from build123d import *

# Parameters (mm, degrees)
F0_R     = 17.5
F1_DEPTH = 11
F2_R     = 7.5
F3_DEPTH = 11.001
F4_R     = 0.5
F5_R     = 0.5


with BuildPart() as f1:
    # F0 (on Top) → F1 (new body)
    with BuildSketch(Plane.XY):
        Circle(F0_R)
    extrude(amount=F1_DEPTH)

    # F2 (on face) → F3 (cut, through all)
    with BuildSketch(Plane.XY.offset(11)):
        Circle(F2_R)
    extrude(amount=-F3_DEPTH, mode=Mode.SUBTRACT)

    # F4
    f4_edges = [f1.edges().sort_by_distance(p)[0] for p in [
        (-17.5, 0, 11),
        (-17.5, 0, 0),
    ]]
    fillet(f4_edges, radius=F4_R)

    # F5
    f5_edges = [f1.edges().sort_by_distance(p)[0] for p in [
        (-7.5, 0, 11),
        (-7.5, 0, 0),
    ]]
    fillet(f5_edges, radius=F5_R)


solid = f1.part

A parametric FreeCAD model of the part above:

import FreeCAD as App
import Part
import Sketcher
from FreeCAD import Vector
Q = App.Units.Quantity


def edges_at(feature, points):
    """Names of the edges that pass closest to the given points."""
    edges = feature.Shape.Edges
    near = lambda p: min(range(len(edges)), key=lambda i: edges[i].distToShape(Part.Vertex(*p))[0])
    return sorted({f"Edge{near(p) + 1}" for p in points})

doc = App.newDocument("Part")
body = doc.addObject("PartDesign::Body", "Body")

sketch1 = doc.addObject("Sketcher::SketchObject", "Sketch")
body.addObject(sketch1)
sketch1.AttachmentSupport = (doc.XY_Plane, [""])
sketch1.MapMode = "FlatFace"
sketch1.addGeometry(Part.Circle(Vector(0, 0, 0), Vector(0, 0, 1), 17.5), False)
sketch1.addConstraint([
    Sketcher.Constraint("Coincident", 0, 3, -1, 1),
    Sketcher.Constraint("Diameter", 0, Q("35 mm")),
])
pad1 = doc.addObject("PartDesign::Pad", "Pad")
body.addObject(pad1)
pad1.Profile = sketch1
pad1.Length = 11

sketch2 = doc.addObject("Sketcher::SketchObject", "Sketch001")
body.addObject(sketch2)
sketch2.AttachmentSupport = (doc.XY_Plane, [""])
sketch2.MapMode = "FlatFace"
sketch2.AttachmentOffset = App.Placement(Vector(0, 0, 11), App.Rotation())
sketch2.addGeometry(Part.Circle(Vector(0, 0, 0), Vector(0, 0, 1), 7.5), False)
sketch2.addConstraint([
    Sketcher.Constraint("Coincident", 0, 3, -1, 1),
    Sketcher.Constraint("Diameter", 0, Q("15 mm")),
])
pocket1 = doc.addObject("PartDesign::Pocket", "Pocket")
body.addObject(pocket1)
pocket1.Profile = sketch2
pocket1.Type = "ThroughAll"
doc.recompute()

fillet = doc.addObject("PartDesign::Fillet", "Fillet")
body.addObject(fillet)
fillet.Base = (pocket1, edges_at(pocket1, [(-17.5, 0, 11), (-17.5, 0, 0)]))
fillet.Radius = 0.5
doc.recompute()

fillet2 = doc.addObject("PartDesign::Fillet", "Fillet001")
body.addObject(fillet2)
fillet2.Base = (fillet, edges_at(fillet, [(-7.5, 0, 11), (-7.5, 0, 0)]))
fillet2.Radius = 0.5

doc.recompute()
